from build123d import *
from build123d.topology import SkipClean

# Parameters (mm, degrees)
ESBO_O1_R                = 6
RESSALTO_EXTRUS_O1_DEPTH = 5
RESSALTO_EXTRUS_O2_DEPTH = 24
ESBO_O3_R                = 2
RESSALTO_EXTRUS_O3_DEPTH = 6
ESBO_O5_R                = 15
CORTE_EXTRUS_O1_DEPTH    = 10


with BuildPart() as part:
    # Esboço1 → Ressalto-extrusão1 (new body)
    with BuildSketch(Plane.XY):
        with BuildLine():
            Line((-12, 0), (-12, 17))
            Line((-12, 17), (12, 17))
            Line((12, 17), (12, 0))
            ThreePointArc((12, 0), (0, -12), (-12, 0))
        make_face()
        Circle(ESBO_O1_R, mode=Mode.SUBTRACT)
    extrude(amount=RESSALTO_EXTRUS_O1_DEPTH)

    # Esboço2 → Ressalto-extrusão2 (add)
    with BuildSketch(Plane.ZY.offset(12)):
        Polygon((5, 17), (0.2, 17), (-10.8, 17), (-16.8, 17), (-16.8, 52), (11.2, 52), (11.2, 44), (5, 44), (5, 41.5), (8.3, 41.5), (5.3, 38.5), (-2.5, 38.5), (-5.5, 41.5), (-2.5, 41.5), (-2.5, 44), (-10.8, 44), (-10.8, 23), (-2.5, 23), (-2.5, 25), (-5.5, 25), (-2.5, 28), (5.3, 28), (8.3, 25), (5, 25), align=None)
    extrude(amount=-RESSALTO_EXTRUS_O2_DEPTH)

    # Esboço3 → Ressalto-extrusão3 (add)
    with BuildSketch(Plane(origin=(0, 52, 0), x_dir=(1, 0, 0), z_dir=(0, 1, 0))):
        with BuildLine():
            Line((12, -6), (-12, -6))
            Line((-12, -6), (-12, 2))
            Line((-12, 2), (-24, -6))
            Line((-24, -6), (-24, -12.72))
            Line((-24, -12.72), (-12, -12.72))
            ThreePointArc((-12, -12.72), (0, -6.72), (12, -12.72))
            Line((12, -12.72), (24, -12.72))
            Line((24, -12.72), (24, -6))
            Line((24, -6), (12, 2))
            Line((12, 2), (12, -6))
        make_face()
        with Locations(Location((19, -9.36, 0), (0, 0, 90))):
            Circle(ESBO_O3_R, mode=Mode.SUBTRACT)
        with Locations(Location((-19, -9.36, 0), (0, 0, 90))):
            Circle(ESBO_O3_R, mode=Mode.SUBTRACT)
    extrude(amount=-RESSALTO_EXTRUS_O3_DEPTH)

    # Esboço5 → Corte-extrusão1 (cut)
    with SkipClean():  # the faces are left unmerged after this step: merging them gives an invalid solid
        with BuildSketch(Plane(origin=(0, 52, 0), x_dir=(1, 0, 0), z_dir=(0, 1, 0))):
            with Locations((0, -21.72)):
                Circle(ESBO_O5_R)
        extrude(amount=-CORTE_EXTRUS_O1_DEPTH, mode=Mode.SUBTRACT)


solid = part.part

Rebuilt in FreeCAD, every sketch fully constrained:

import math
import FreeCAD as App
import Part
import Sketcher
from FreeCAD import Vector

doc = App.newDocument("Part")
body = doc.addObject("PartDesign::Body", "Body")

# Sketch on XY plane
sketch1 = doc.addObject("Sketcher::SketchObject", "Sketch")
body.addObject(sketch1)
sketch1.AttachmentSupport = (doc.XY_Plane, [""])
sketch1.MapMode = "FlatFace"
sketch1.addGeometry([
    Part.LineSegment(Vector(-12, 17, 0), Vector(-12, 0, 0)),  # 0
    Part.ArcOfCircle(Part.Circle(Vector(0, 0, 0), Vector(0, 0, 1), 12), math.radians(180), math.radians(360)),  # 1
    Part.LineSegment(Vector(12, 0, 0), Vector(12, 17, 0)),  # 2
    Part.LineSegment(Vector(12, 17, 0), Vector(-12, 17, 0)),  # 3
    Part.Circle(Vector(0, 0, 0), Vector(0, 0, 1), 6),  # 4
], False)
sketch1.addConstraint([
    Sketcher.Constraint("Tangent", 0, 2, 1, 1),
    Sketcher.Constraint("Tangent", 1, 2, 2, 1),
    Sketcher.Constraint("Coincident", 2, 2, 3, 1),
    Sketcher.Constraint("Coincident", 3, 2, 0, 1),
    Sketcher.Constraint("Vertical", 0),
    Sketcher.Constraint("Vertical", 2),
    Sketcher.Constraint("Horizontal", 3),
    Sketcher.Constraint("Coincident", 1, 3, -1, 1),
    Sketcher.Constraint("Coincident", 4, 3, -1, 1),
    Sketcher.Constraint("Diameter", 4, 12.0),
    Sketcher.Constraint("Radius", 1, 12.0),
    Sketcher.Constraint("DistanceY", 0, 2, 0, 1, 17.0),
])
pad1 = doc.addObject("PartDesign::Pad", "Pad")
body.addObject(pad1)
pad1.Profile = sketch1
pad1.Length = 5

# Sketch on YZ plane
sketch2 = doc.addObject("Sketcher::SketchObject", "Sketch001")
body.addObject(sketch2)
sketch2.AttachmentSupport = (doc.YZ_Plane, [""])
sketch2.MapMode = "FlatFace"
sketch2.AttachmentOffset = App.Placement(Vector(0, 0, -12), App.Rotation())
sketch2.addGeometry([
    Part.LineSegment(Vector(17, -16.8, 0), Vector(17, 5, 0)),  # 0
    Part.LineSegment(Vector(17, 5, 0), Vector(25, 5, 0)),  # 1
    Part.LineSegment(Vector(25, 5, 0), Vector(25, 8.3, 0)),  # 2
    Part.LineSegment(Vector(25, 8.3, 0), Vector(28, 5.3, 0)),  # 3
    Part.LineSegment(Vector(28, 5.3, 0), Vector(28, -2.5, 0)),  # 4
    Part.LineSegment(Vector(28, -2.5, 0), Vector(25, -5.5, 0)),  # 5
    Part.LineSegment(Vector(25, -5.5, 0), Vector(25, -2.5, 0)),  # 6
    Part.LineSegment(Vector(25, -2.5, 0), Vector(23, -2.5, 0)),  # 7
    Part.LineSegment(Vector(23, -2.5, 0), Vector(23, -10.8, 0)),  # 8
    Part.LineSegment(Vector(23, -10.8, 0), Vector(44, -10.8, 0)),  # 9
    Part.LineSegment(Vector(44, -10.8, 0), Vector(44, -2.5, 0)),  # 10
    Part.LineSegment(Vector(44, -2.5, 0), Vector(41.5, -2.5, 0)),  # 11
    Part.LineSegment(Vector(41.5, -2.5, 0), Vector(41.5, -5.5, 0)),  # 12
    Part.LineSegment(Vector(41.5, -5.5, 0), Vector(38.5, -2.5, 0)),  # 13
    Part.LineSegment(Vector(38.5, -2.5, 0), Vector(38.5, 5.3, 0)),  # 14
    Part.LineSegment(Vector(38.5, 5.3, 0), Vector(41.5, 8.3, 0)),  # 15
    Part.LineSegment(Vector(41.5, 8.3, 0), Vector(41.5, 5, 0)),  # 16
    Part.LineSegment(Vector(41.5, 5, 0), Vector(44, 5, 0)),  # 17
    Part.LineSegment(Vector(44, 5, 0), Vector(44, 11.2, 0)),  # 18
    Part.LineSegment(Vector(44, 11.2, 0), Vector(52, 11.2, 0)),  # 19
    Part.LineSegment(Vector(52, 11.2, 0), Vector(52, -16.8, 0)),  # 20
    Part.LineSegment(Vector(52, -16.8, 0), Vector(17, -16.8, 0)),  # 21
], False)
sketch2.addConstraint([
    Sketcher.Constraint("Coincident", 0, 2, 1, 1),
    Sketcher.Constraint("Coincident", 1, 2, 2, 1),
    Sketcher.Constraint("Coincident", 2, 2, 3, 1),
    Sketcher.Constraint("Coincident", 3, 2, 4, 1),
    Sketcher.Constraint("Coincident", 4, 2, 5, 1),
    Sketcher.Constraint("Coincident", 5, 2, 6, 1),
    Sketcher.Constraint("Coincident", 6, 2, 7, 1),
    Sketcher.Constraint("Coincident", 7, 2, 8, 1),
    Sketcher.Constraint("Coincident", 8, 2, 9, 1),
    Sketcher.Constraint("Coincident", 9, 2, 10, 1),
    Sketcher.Constraint("Coincident", 10, 2, 11, 1),
    Sketcher.Constraint("Coincident", 11, 2, 12, 1),
    Sketcher.Constraint("Coincident", 12, 2, 13, 1),
    Sketcher.Constraint("Coincident", 13, 2, 14, 1),
    Sketcher.Constraint("Coincident", 14, 2, 15, 1),
    Sketcher.Constraint("Coincident", 15, 2, 16, 1),
    Sketcher.Constraint("Coincident", 16, 2, 17, 1),
    Sketcher.Constraint("Coincident", 17, 2, 18, 1),
    Sketcher.Constraint("Coincident", 18, 2, 19, 1),
    Sketcher.Constraint("Coincident", 19, 2, 20, 1),
    Sketcher.Constraint("Coincident", 20, 2, 21, 1),
    Sketcher.Constraint("Coincident", 21, 2, 0, 1),
    Sketcher.Constraint("Vertical", 0),
    Sketcher.Constraint("Horizontal", 1),
    Sketcher.Constraint("Vertical", 2),
    Sketcher.Constraint("Vertical", 4),
    Sketcher.Constraint("Vertical", 6),
    Sketcher.Constraint("Horizontal", 7),
    Sketcher.Constraint("Vertical", 8),
    Sketcher.Constraint("Horizontal", 9),
    Sketcher.Constraint("Vertical", 10),
    Sketcher.Constraint("Horizontal", 11),
    Sketcher.Constraint("Vertical", 12),
    Sketcher.Constraint("Vertical", 14),
    Sketcher.Constraint("Vertical", 16),
    Sketcher.Constraint("Horizontal", 17),
    Sketcher.Constraint("Vertical", 18),
    Sketcher.Constraint("Horizontal", 19),
    Sketcher.Constraint("Vertical", 20),
    Sketcher.Constraint("Horizontal", 21),
    Sketcher.Constraint("Perpendicular", 3, 5),
    Sketcher.Constraint("Perpendicular", 5, 13),
    Sketcher.Constraint("Perpendicular", 13, 15),
    Sketcher.Constraint("Horizontal", 4, 2, 6, 2),
    Sketcher.Constraint("Horizontal", 7, 2, 10, 2),
    Sketcher.Constraint("Horizontal", 5, 2, 12, 2),
    Sketcher.Constraint("Horizontal", 11, 2, 13, 2),
    Sketcher.Constraint("Horizontal", 3, 2, 14, 2),
    Sketcher.Constraint("Horizontal", 2, 2, 15, 2),
    Sketcher.Constraint("Horizontal", 1, 2, 16, 2),
    Sketcher.Constraint("Vertical", 2, 2, 5, 2),
    Sketcher.Constraint("Vertical", 12, 2, 15, 2),
    Sketcher.Constraint("Vertical", 10, 2, 17, 2),
    Sketcher.Constraint("Equal", 1, 19),
    Sketcher.Constraint("DistanceX", 1, 1, 1, 2, 8.0),
    Sketcher.Constraint("DistanceX", 7, 2, 7, 1, 2.0),
    Sketcher.Constraint("DistanceX", 9, 1, 9, 2, 21.0),
    Sketcher.Constraint("DistanceY", 6, 1, 6, 2, 3.0),
    Sketcher.Constraint("DistanceY", 20, 2, 20, 1, 28.0),
    Sketcher.Constraint("DistanceX", 11, 2, 11, 1, 2.5),
    Sketcher.Constraint("DistanceY", 0, 1, 0, 2, 21.8),
    Sketcher.Constraint("DistanceY", 2, 1, 2, 2, 3.3),
    Sketcher.Constraint("DistanceY", 4, 2, 4, 1, 7.8),
    Sketcher.Constraint("DistanceY", 8, 2, 8, 1, 8.3),
    Sketcher.Constraint("DistanceX", -1, 1, 0, 2, 17.0),
    Sketcher.Constraint("DistanceY", -1, 1, 0, 2, 5.0),
])
pad2 = doc.addObject("PartDesign::Pad", "Pad001")
body.addObject(pad2)
pad2.Profile = sketch2
pad2.Length = 24

# Sketch on XZ plane
sketch3 = doc.addObject("Sketcher::SketchObject", "Sketch002")
body.addObject(sketch3)
sketch3.AttachmentSupport = (doc.XZ_Plane, [""])
sketch3.MapMode = "FlatFace"
sketch3.AttachmentOffset = App.Placement(Vector(0, 0, -52), App.Rotation())
sketch3.addGeometry([
    Part.LineSegment(Vector(12, 6, 0), Vector(-12, 6, 0)),  # 0
    Part.LineSegment(Vector(-12, 6, 0), Vector(-12, -2, 0)),  # 1
    Part.LineSegment(Vector(-12, -2, 0), Vector(-24, 6, 0)),  # 2
    Part.LineSegment(Vector(-24, 6, 0), Vector(-24, 12.72, 0)),  # 3
    Part.LineSegment(Vector(-24, 12.72, 0), Vector(-12, 12.72, 0)),  # 4
    Part.ArcOfCircle(Part.Circle(Vector(0, 21.72, 0), Vector(0, 0, 1), 15), math.radians(-143.130102), math.radians(-36.869898)),  # 5
    Part.LineSegment(Vector(12, 12.72, 0), Vector(24, 12.72, 0)),  # 6
    Part.LineSegment(Vector(24, 12.72, 0), Vector(24, 6, 0)),  # 7
    Part.LineSegment(Vector(24, 6, 0), Vector(12, -2, 0)),  # 8
    Part.LineSegment(Vector(12, -2, 0), Vector(12, 6, 0)),  # 9
    Part.Circle(Vector(-19, 9.36, 0), Vector(0, 0, 1), 2),  # 10
    Part.Circle(Vector(19, 9.36, 0), Vector(0, 0, 1), 2),  # 11
], False)
sketch3.addConstraint([
    Sketcher.Constraint("Coincident", 0, 2, 1, 1),
    Sketcher.Constraint("Coincident", 1, 2, 2, 1),
    Sketcher.Constraint("Coincident", 2, 2, 3, 1),
    Sketcher.Constraint("Coincident", 3, 2, 4, 1),
    Sketcher.Constraint("Coincident", 4, 2, 5, 1),
    Sketcher.Constraint("Coincident", 5, 2, 6, 1),
    Sketcher.Constraint("Coincident", 6, 2, 7, 1),
    Sketcher.Constraint("Coincident", 7, 2, 8, 1),
    Sketcher.Constraint("Coincident", 8, 2, 9, 1),
    Sketcher.Constraint("Coincident", 9, 2, 0, 1),
    Sketcher.Constraint("Horizontal", 0),
    Sketcher.Constraint("Vertical", 1),
    Sketcher.Constraint("Vertical", 3),
    Sketcher.Constraint("Horizontal", 4),
    Sketcher.Constraint("Horizontal", 6),
    Sketcher.Constraint("Vertical", 7),
    Sketcher.Constraint("Vertical", 9),
    Sketcher.Constraint("Equal", 10, 11),
    Sketcher.Constraint("Symmetric", 10, 3, 11, 3, -2),
    Sketcher.Constraint("Symmetric", 4, 2, 5, 2, -2),
    Sketcher.Constraint("Symmetric", 2, 2, 7, 2, -2),
    Sketcher.Constraint("Symmetric", 1, 2, 8, 2, -2),
    Sketcher.Constraint("Horizontal", 0, 2, 2, 2),
    Sketcher.Constraint("Vertical", 1, 2, 4, 2),
    Sketcher.Constraint("Diameter", 10, 4.0),
    Sketcher.Constraint("Radius", 5, 15.0),
    Sketcher.Constraint("DistanceX", 0, 2, 0, 1, 24.0),
    Sketcher.Constraint("DistanceX", 4, 1, 4, 2, 12.0),
    Sketcher.Constraint("DistanceY", 1, 2, 1, 1, 8.0),
    Sketcher.Constraint("DistanceX", 10, 3, -1, 1, 19.0),
    Sketcher.Constraint("DistanceY", -1, 1, 0, 2, 6.0),
    Sketcher.Constraint("DistanceY", 3, 1, 3, 2, 6.72),
    Sketcher.Constraint("DistanceY", -1, 1, 10, 3, 9.36),
])
pad3 = doc.addObject("PartDesign::Pad", "Pad002")
body.addObject(pad3)
pad3.Profile = sketch3
pad3.Length = 6

# Sketch on XZ plane
sketch4 = doc.addObject("Sketcher::SketchObject", "Sketch003")
body.addObject(sketch4)
sketch4.AttachmentSupport = (doc.XZ_Plane, [""])
sketch4.MapMode = "FlatFace"
sketch4.AttachmentOffset = App.Placement(Vector(0, 0, -52), App.Rotation())
sketch4.addGeometry(Part.Circle(Vector(0, 21.72, 0), Vector(0, 0, 1), 15), False)
sketch4.addConstraint([
    Sketcher.Constraint("PointOnObject", 0, 3, -2),
    Sketcher.Constraint("Diameter", 0, 30.0),
    Sketcher.Constraint("DistanceY", -1, 1, 0, 3, 21.72),
])
pocket1 = doc.addObject("PartDesign::Pocket", "Pocket")
body.addObject(pocket1)
pocket1.Profile = sketch4
pocket1.Length = 10
pocket1.Reversed = True

doc.recompute()
